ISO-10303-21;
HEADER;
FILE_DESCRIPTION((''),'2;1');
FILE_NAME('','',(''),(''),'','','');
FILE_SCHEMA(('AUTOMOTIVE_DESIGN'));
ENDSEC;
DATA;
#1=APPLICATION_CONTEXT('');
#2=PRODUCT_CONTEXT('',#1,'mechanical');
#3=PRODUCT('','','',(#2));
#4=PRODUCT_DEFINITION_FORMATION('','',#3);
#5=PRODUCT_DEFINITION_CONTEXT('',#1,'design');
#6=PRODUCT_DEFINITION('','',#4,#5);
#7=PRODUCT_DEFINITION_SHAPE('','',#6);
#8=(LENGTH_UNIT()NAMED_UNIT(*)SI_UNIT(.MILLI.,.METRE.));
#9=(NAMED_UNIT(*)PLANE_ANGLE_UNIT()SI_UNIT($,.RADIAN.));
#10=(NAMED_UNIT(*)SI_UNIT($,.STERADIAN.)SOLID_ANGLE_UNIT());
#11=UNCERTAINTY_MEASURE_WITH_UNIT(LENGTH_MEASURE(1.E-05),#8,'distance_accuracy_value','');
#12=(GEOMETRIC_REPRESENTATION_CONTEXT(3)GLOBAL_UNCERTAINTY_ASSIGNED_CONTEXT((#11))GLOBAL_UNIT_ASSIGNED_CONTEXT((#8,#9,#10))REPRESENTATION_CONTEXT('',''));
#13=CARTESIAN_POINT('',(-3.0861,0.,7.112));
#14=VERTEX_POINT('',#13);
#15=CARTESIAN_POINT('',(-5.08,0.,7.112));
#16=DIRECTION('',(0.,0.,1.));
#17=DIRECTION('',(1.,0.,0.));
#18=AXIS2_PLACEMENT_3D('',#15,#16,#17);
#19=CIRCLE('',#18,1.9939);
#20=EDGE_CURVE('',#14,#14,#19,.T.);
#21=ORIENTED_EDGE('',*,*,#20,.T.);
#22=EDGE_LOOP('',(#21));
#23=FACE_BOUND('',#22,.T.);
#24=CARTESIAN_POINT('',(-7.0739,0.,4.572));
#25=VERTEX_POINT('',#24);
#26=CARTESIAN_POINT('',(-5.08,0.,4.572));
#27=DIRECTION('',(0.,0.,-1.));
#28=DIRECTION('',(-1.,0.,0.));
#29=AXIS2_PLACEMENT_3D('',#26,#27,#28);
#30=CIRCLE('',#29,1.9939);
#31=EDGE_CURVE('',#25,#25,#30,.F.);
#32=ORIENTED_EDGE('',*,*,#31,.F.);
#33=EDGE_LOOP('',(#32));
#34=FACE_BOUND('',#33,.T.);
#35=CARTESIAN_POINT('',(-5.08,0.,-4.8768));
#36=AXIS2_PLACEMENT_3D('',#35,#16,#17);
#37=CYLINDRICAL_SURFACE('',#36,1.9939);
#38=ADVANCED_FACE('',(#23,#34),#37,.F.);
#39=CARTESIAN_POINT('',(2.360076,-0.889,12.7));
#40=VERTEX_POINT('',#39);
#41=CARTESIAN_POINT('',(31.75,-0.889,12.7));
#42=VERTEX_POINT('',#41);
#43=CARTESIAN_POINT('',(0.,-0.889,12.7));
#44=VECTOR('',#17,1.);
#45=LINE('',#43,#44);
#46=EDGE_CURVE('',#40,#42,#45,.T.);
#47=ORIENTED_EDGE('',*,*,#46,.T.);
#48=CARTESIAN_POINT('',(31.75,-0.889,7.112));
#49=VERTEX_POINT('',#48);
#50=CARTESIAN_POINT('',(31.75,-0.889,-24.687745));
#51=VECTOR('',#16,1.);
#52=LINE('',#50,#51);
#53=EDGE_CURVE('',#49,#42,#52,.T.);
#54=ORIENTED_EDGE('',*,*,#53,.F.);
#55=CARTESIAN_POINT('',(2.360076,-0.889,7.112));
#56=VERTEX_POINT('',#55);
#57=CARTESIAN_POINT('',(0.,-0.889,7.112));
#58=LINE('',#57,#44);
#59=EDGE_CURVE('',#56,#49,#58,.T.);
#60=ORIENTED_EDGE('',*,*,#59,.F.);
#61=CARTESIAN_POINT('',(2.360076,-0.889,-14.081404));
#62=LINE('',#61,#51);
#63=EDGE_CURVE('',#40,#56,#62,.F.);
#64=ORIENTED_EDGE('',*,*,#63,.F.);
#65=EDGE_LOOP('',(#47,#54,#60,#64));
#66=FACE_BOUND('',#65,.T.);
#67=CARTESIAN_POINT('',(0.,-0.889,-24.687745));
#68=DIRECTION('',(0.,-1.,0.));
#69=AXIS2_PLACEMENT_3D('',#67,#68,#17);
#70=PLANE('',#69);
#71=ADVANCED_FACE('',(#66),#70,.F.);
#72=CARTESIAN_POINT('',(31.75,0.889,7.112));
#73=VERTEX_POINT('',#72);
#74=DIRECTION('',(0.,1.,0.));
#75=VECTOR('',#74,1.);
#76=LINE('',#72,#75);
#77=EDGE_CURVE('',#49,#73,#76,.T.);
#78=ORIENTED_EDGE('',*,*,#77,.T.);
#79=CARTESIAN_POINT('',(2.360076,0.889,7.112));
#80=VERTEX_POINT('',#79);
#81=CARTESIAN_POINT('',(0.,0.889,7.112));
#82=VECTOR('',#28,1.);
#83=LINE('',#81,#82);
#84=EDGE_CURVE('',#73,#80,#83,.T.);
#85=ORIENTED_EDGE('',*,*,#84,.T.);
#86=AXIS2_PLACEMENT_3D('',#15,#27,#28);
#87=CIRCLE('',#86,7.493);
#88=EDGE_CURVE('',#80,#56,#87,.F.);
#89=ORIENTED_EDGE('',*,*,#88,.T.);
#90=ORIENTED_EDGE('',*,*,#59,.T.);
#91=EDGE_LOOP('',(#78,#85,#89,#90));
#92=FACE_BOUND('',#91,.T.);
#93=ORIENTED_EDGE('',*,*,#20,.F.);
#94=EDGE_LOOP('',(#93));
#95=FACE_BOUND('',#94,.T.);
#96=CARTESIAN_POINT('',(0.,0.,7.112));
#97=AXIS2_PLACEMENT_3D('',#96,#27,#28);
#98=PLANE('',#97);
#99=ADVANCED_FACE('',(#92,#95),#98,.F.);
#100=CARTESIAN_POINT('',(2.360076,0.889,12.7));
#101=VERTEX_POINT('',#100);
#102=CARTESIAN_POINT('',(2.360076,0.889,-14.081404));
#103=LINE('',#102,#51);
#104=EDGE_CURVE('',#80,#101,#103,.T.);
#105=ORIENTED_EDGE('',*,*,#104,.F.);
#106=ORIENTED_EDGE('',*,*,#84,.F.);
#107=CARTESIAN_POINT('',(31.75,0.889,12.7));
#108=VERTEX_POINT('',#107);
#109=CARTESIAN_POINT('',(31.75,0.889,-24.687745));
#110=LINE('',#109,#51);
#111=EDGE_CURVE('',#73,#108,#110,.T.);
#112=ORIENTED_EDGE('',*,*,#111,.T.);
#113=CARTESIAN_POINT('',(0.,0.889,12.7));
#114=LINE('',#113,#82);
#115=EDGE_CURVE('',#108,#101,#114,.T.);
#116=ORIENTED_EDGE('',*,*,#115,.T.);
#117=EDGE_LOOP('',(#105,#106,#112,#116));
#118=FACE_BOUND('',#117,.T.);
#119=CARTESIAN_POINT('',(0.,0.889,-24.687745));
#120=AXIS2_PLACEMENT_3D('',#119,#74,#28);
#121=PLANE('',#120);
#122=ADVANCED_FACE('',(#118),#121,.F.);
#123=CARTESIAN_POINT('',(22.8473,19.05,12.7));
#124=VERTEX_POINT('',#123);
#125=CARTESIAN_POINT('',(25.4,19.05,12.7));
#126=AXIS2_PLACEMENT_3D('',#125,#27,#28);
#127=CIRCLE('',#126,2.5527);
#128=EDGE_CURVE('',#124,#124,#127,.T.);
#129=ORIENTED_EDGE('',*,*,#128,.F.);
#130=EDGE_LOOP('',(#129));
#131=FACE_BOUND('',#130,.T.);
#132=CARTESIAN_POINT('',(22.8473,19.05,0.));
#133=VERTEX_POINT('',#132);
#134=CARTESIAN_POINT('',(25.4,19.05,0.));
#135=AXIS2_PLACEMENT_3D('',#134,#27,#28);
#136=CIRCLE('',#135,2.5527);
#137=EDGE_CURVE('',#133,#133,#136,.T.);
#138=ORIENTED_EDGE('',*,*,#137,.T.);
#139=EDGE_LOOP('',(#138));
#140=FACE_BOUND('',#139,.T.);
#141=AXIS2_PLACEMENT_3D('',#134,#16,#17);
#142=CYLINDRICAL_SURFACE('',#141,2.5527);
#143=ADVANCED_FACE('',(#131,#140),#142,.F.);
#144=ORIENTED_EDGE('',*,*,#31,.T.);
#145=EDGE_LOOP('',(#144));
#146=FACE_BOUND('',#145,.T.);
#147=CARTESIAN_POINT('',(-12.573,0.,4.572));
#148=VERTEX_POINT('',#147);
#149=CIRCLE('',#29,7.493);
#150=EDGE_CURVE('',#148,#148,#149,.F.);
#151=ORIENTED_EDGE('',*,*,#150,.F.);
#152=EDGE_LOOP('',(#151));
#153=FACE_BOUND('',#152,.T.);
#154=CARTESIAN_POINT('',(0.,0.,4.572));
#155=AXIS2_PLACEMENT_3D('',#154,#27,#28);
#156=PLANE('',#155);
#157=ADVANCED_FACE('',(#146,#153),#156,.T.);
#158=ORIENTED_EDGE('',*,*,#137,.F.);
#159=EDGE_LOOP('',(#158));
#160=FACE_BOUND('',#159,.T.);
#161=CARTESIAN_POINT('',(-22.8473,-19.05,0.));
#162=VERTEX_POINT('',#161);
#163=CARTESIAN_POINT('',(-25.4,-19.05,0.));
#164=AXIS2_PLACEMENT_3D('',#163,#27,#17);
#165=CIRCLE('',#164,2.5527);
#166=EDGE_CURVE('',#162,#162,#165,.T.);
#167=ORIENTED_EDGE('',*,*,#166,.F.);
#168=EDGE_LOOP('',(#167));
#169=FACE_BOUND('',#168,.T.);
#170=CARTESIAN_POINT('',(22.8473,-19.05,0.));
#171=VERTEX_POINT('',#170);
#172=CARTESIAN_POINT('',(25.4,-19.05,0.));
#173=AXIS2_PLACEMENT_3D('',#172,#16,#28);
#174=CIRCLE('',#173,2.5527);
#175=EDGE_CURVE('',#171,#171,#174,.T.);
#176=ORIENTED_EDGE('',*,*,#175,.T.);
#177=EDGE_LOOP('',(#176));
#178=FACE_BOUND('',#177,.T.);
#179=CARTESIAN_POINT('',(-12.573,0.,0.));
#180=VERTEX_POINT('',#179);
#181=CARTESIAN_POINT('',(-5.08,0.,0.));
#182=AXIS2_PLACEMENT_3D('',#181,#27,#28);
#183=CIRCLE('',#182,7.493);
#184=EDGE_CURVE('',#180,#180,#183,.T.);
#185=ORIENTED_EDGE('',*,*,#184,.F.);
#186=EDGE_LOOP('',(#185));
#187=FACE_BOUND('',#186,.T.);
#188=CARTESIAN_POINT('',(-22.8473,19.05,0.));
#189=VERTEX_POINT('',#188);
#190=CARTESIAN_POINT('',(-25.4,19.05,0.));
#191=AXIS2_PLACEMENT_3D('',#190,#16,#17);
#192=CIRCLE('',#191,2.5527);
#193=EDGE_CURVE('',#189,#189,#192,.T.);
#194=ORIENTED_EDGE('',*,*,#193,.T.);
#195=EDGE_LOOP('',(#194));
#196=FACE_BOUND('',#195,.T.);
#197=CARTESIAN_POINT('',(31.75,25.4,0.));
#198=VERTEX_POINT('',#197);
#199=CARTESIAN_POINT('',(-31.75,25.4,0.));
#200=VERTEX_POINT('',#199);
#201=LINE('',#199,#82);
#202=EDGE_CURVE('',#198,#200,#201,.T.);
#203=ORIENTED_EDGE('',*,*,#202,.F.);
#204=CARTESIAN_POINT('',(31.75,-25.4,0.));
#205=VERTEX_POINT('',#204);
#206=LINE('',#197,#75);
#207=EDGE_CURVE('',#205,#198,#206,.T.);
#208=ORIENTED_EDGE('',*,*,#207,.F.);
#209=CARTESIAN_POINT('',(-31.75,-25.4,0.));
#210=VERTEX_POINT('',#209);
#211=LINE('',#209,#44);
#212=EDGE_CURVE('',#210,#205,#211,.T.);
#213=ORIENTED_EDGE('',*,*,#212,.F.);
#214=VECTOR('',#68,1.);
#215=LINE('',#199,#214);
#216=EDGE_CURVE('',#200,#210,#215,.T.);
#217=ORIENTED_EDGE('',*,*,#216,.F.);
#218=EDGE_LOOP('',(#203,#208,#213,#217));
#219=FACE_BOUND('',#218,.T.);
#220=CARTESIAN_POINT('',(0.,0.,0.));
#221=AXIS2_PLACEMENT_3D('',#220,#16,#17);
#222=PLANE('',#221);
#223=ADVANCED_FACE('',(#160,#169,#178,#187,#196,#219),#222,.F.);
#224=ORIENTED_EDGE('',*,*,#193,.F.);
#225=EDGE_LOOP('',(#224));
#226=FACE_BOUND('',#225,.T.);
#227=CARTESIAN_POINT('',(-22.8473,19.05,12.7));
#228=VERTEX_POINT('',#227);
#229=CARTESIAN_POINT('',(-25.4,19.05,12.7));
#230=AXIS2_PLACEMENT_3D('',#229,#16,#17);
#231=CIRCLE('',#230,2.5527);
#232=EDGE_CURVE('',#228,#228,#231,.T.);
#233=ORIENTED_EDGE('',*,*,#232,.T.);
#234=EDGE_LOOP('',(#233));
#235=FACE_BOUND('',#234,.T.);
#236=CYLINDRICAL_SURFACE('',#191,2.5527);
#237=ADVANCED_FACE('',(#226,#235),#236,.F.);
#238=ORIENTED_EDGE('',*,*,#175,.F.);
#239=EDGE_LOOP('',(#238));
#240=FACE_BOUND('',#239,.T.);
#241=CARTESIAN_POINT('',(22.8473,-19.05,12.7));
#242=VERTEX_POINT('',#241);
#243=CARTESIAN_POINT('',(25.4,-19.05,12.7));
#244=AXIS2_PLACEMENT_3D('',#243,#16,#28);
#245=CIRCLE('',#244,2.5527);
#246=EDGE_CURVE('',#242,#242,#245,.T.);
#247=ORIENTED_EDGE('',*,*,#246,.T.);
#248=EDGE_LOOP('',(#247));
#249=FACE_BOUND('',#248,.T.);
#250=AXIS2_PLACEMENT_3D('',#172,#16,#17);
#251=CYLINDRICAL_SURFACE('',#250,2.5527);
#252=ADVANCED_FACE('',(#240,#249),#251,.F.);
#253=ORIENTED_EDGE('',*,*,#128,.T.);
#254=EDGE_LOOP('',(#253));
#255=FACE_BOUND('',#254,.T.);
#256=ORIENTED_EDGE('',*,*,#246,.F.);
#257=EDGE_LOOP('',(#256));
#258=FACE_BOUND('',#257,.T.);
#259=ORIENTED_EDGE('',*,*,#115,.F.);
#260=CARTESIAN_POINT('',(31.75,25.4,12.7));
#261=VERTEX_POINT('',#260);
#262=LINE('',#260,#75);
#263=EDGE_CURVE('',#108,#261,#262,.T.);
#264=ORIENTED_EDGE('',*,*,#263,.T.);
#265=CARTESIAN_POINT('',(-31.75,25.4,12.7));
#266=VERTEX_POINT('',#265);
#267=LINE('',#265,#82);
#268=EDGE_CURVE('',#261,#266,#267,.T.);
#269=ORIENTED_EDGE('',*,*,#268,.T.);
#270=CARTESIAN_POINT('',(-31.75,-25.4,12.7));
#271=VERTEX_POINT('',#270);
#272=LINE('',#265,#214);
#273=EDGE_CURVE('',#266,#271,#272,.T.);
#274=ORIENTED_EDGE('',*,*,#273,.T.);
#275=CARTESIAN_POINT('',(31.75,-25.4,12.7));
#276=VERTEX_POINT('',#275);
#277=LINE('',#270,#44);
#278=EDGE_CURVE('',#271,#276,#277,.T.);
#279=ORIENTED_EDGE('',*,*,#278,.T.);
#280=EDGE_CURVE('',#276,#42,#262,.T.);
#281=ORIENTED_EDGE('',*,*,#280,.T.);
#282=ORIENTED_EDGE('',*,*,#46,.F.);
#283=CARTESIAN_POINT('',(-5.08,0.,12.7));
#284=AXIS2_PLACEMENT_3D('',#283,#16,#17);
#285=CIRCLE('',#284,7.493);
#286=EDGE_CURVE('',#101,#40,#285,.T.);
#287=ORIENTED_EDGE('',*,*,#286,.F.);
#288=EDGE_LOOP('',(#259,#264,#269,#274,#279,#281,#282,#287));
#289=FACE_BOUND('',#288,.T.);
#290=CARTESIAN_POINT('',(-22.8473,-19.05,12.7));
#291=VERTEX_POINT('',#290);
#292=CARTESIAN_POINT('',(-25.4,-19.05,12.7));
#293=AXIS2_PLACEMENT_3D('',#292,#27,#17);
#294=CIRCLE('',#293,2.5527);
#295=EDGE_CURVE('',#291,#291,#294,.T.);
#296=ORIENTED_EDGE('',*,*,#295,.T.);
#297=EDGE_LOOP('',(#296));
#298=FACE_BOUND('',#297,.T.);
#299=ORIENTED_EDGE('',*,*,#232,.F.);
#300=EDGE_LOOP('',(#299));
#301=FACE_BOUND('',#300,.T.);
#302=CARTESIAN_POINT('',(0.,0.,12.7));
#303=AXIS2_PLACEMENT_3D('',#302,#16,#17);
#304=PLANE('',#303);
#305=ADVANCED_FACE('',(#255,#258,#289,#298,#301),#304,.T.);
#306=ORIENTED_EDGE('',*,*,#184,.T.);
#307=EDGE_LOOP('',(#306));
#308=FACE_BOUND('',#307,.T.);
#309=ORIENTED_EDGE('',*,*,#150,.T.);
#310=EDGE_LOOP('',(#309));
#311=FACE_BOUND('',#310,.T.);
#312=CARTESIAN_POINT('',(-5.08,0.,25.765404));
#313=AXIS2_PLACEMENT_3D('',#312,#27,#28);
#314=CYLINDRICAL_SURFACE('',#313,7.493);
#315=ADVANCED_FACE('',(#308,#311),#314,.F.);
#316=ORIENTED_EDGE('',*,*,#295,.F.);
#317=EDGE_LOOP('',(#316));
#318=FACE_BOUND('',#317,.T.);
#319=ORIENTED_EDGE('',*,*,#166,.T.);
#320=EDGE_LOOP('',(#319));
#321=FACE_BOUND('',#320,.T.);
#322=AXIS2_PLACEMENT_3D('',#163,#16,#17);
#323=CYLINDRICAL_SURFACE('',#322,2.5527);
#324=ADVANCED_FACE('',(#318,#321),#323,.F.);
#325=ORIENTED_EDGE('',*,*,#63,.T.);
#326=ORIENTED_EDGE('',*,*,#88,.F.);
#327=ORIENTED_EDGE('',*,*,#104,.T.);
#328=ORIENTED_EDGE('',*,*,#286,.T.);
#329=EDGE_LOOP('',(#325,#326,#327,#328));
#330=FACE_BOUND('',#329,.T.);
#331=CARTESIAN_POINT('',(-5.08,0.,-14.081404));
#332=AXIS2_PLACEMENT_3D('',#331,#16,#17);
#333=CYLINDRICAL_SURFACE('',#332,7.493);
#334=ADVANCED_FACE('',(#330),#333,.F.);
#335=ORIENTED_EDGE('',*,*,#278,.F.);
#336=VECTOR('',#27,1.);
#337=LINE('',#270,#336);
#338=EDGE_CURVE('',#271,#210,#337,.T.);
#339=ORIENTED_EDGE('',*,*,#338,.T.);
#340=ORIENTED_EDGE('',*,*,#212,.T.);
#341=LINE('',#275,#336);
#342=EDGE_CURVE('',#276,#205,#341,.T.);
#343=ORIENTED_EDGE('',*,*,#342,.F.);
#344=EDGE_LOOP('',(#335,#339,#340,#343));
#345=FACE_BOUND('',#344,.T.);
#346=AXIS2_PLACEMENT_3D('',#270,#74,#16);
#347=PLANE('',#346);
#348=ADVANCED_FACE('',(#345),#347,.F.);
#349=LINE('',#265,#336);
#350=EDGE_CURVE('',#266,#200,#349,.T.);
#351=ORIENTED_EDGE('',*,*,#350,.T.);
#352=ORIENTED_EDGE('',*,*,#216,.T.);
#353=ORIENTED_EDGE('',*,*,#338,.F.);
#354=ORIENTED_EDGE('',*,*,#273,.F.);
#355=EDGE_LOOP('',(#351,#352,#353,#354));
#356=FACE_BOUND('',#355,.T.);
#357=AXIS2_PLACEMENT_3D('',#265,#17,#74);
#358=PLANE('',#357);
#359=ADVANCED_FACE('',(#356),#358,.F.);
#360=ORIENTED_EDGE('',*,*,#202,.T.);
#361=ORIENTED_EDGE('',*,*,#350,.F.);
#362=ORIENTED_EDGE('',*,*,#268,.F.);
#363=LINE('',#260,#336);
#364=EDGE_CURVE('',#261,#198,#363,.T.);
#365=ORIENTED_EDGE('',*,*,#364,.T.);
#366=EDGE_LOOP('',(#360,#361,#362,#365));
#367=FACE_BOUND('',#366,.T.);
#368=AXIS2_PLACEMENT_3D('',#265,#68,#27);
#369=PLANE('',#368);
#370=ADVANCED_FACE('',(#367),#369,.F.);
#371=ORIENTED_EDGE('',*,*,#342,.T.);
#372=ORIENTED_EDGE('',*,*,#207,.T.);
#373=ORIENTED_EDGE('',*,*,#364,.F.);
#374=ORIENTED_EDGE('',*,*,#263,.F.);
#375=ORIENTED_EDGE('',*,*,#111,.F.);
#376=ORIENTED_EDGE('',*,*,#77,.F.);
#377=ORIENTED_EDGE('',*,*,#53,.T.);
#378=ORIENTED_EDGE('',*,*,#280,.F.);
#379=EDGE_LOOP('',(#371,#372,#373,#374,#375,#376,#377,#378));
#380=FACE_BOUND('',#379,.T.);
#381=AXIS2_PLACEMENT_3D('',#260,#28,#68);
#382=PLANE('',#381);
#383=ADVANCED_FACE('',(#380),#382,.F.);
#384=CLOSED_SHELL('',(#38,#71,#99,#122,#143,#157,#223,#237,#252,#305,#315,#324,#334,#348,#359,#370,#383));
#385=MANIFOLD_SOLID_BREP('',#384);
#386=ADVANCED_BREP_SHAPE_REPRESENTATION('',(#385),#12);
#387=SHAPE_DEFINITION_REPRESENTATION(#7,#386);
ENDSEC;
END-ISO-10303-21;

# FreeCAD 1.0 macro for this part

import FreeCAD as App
import Part
import Sketcher

V = App.Vector
Q = App.Units.Quantity

doc = App.newDocument("Part")
body = doc.addObject("PartDesign::Body", "Body")

sketch1 = body.newObject("Sketcher::SketchObject", "Sketch")
sketch1.AttachmentSupport = (doc.getObject("XY_Plane"), [""])
sketch1.MapMode = "FlatFace"
sketch1.addGeometry(Part.LineSegment(V(-32, 25, 0), V(-32, -25, 0)), False)
sketch1.addGeometry(Part.LineSegment(V(-32, -25, 0), V(32, -25, 0)), False)
sketch1.addGeometry(Part.LineSegment(V(32, -25, 0), V(32, 25, 0)), False)
sketch1.addGeometry(Part.LineSegment(V(32, 25, 0), V(-32, 25, 0)), False)
sketch1.addConstraint(Sketcher.Constraint("Coincident", 0, 2, 1, 1))
sketch1.addConstraint(Sketcher.Constraint("Coincident", 1, 2, 2, 1))
sketch1.addConstraint(Sketcher.Constraint("Coincident", 2, 2, 3, 1))
sketch1.addConstraint(Sketcher.Constraint("Coincident", 3, 2, 0, 1))
sketch1.addConstraint(Sketcher.Constraint("Vertical", 0))
sketch1.addConstraint(Sketcher.Constraint("Horizontal", 1))
sketch1.addConstraint(Sketcher.Constraint("Vertical", 2))
sketch1.addConstraint(Sketcher.Constraint("Horizontal", 3))
sketch1.addConstraint(Sketcher.Constraint("Symmetric", 0, 2, 2, 2, -1, 1))
sketch1.addConstraint(Sketcher.Constraint("DistanceY", 0, 2, 0, 1, Q("2 in")))
sketch1.addConstraint(Sketcher.Constraint("DistanceX", 1, 1, 1, 2, Q("2.5 in")))
pad1 = body.newObject("PartDesign::Pad", "Pad")
pad1.Profile = sketch1
pad1.Length = Q("0.5 in")

sketch2 = body.newObject("Sketcher::SketchObject", "Sketch001")
sketch2.AttachmentSupport = (doc.getObject("XY_Plane"), [""])
sketch2.MapMode = "FlatFace"
sketch2.AttachmentOffset = App.Placement(V(0, 0, 0.28 * 25.4), App.Rotation())
sketch2.addGeometry(Part.Circle(V(-5, 0, 0), V(0, 0, 1), 7), False)
sketch2.addConstraint(Sketcher.Constraint("PointOnObject", 0, 3, -1))
sketch2.addConstraint(Sketcher.Constraint("Diameter", 0, Q("0.59 in")))
sketch2.addConstraint(Sketcher.Constraint("DistanceX", 0, 3, -1, 1, Q("0.2 in")))
pocket1 = body.newObject("PartDesign::Pocket", "Pocket")
pocket1.Profile = sketch2
pocket1.Length = Q("0.22 in")
pocket1.Reversed = True

sketch3 = body.newObject("Sketcher::SketchObject", "Sketch002")
sketch3.AttachmentSupport = (doc.getObject("XY_Plane"), [""])
sketch3.MapMode = "FlatFace"
sketch3.AttachmentOffset = App.Placement(V(0, 0, 0.28 * 25.4), App.Rotation())
sketch3.addGeometry(Part.LineSegment(V(0, 0.9, 0), V(0, -0.9, 0)), False)
sketch3.addGeometry(Part.LineSegment(V(0, -0.9, 0), V(31.8, -0.9, 0)), False)
sketch3.addGeometry(Part.LineSegment(V(31.8, -0.9, 0), V(31.8, 0.9, 0)), False)
sketch3.addGeometry(Part.LineSegment(V(31.8, 0.9, 0), V(0, 0.9, 0)), False)
sketch3.addConstraint(Sketcher.Constraint("Coincident", 0, 2, 1, 1))
sketch3.addConstraint(Sketcher.Constraint("Coincident", 1, 2, 2, 1))
sketch3.addConstraint(Sketcher.Constraint("Coincident", 2, 2, 3, 1))
sketch3.addConstraint(Sketcher.Constraint("Coincident", 3, 2, 0, 1))
sketch3.addConstraint(Sketcher.Constraint("Vertical", 0))
sketch3.addConstraint(Sketcher.Constraint("Horizontal", 1))
sketch3.addConstraint(Sketcher.Constraint("Vertical", 2))
sketch3.addConstraint(Sketcher.Constraint("Horizontal", 3))
sketch3.addConstraint(Sketcher.Constraint("Symmetric", 0, 2, 3, 2, -1, 1))
sketch3.addConstraint(Sketcher.Constraint("DistanceX", 1, 1, 1, 2, Q("1.25 in")))
sketch3.addConstraint(Sketcher.Constraint("DistanceY", 0, 2, 0, 1, Q("0.07 in")))
pocket2 = body.newObject("PartDesign::Pocket", "Pocket001")
pocket2.Profile = sketch3
pocket2.Length = Q("0.22 in")
pocket2.Reversed = True

sketch4 = body.newObject("Sketcher::SketchObject", "Sketch003")
sketch4.AttachmentSupport = (doc.getObject("XY_Plane"), [""])
sketch4.MapMode = "FlatFace"
sketch4.AttachmentOffset = App.Placement(V(0, 0, 0.28 * 25.4), App.Rotation())
sketch4.addGeometry(Part.Circle(V(-5.1, 0, 0), V(0, 0, 1), 2), False)
sketch4.addConstraint(Sketcher.Constraint("PointOnObject", 0, 3, -1))
sketch4.addConstraint(Sketcher.Constraint("Diameter", 0, Q("0.157 in")))
sketch4.addConstraint(Sketcher.Constraint("DistanceX", 0, 3, -1, 1, Q("0.2 in")))
pocket3 = body.newObject("PartDesign::Pocket", "Pocket002")
pocket3.Profile = sketch4
pocket3.Length = Q("0.472 in")

sketch5 = body.newObject("Sketcher::SketchObject", "Sketch004")
sketch5.AttachmentSupport = (doc.getObject("XY_Plane"), [""])
sketch5.MapMode = "FlatFace"
sketch5.AttachmentOffset = App.Placement(V(0, 0, 0.18 * 25.4), App.Rotation())
sketch5.addGeometry(Part.Circle(V(-5, 0, 0), V(0, 0, 1), 7), False)
sketch5.addConstraint(Sketcher.Constraint("PointOnObject", 0, 3, -1))
sketch5.addConstraint(Sketcher.Constraint("Diameter", 0, Q("0.59 in")))
sketch5.addConstraint(Sketcher.Constraint("DistanceX", 0, 3, -1, 1, Q("0.2 in")))
pocket4 = body.newObject("PartDesign::Pocket", "Pocket003")
pocket4.Profile = sketch5
pocket4.Length = Q("0.18 in")

sketch6 = body.newObject("Sketcher::SketchObject", "Sketch005")
sketch6.AttachmentSupport = (doc.getObject("XY_Plane"), [""])
sketch6.MapMode = "FlatFace"
sketch6.AttachmentOffset = App.Placement(V(0, 0, 0.5 * 25.4), App.Rotation())
sketch6.addGeometry(Part.Circle(V(-25.4, 19.1, 0), V(0, 0, 1), 2.6), False)
sketch6.addConstraint(Sketcher.Constraint("Diameter", 0, Q("0.201 in")))
sketch6.addConstraint(Sketcher.Constraint("DistanceX", 0, 3, -1, 1, Q("1 in")))
sketch6.addConstraint(Sketcher.Constraint("DistanceY", -1, 1, 0, 3, Q("0.75 in")))
pocket5 = body.newObject("PartDesign::Pocket", "Pocket004")
pocket5.Profile = sketch6
pocket5.Type = "ThroughAll"
doc.recompute()

mirrored = body.newObject("PartDesign::Mirrored", "Mirrored")
mirrored.Originals = [pocket5]
mirrored.MirrorPlane = (doc.getObject("YZ_Plane"), [""])
body.Tip = mirrored
doc.recompute()

mirrored2 = body.newObject("PartDesign::Mirrored", "Mirrored001")
mirrored2.Originals = [pocket5]
mirrored2.MirrorPlane = (doc.getObject("XZ_Plane"), [""])
body.Tip = mirrored2

sketch7 = body.newObject("Sketcher::SketchObject", "Sketch006")
sketch7.AttachmentSupport = (doc.getObject("XY_Plane"), [""])
sketch7.MapMode = "FlatFace"
sketch7.AttachmentOffset = App.Placement(V(0, 0, 0.5 * 25.4), App.Rotation())
sketch7.addGeometry(Part.Circle(V(25.4, -19.1, 0), V(0, 0, 1), 2.6), False)
sketch7.addConstraint(Sketcher.Constraint("Diameter", 0, Q("0.201 in")))
sketch7.addConstraint(Sketcher.Constraint("DistanceX", -1, 1, 0, 3, Q("1 in")))
sketch7.addConstraint(Sketcher.Constraint("DistanceY", 0, 3, -1, 1, Q("0.75 in")))
pocket6 = body.newObject("PartDesign::Pocket", "Pocket005")
pocket6.Profile = sketch7
pocket6.Type = "ThroughAll"

doc.recompute()
